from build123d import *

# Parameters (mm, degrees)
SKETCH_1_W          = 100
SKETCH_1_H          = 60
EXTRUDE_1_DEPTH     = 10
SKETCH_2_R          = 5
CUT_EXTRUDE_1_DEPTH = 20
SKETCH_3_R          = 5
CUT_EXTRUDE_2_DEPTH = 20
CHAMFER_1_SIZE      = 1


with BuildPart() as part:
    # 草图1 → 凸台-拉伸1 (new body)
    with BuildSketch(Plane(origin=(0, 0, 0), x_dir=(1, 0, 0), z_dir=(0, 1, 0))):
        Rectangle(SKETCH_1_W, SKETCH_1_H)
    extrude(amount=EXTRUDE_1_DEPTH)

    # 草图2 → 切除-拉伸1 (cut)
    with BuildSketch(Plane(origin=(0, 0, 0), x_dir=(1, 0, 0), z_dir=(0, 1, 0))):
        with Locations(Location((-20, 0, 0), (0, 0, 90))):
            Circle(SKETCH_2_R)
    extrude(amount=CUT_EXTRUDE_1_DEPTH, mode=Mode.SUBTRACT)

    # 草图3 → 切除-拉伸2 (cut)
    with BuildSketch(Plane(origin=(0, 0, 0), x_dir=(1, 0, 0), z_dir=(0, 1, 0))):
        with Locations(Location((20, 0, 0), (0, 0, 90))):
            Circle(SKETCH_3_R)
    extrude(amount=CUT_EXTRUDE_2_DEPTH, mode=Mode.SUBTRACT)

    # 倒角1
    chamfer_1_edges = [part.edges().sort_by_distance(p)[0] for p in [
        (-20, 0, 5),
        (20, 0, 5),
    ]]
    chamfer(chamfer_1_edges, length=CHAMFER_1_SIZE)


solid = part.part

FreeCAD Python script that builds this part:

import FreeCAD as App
import Part
import Sketcher

V = App.Vector


def edges_at(feature, points):
    """Names of the edges that pass closest to the given points."""
    edges = feature.Shape.Edges
    near = lambda p: min(range(len(edges)), key=lambda i: edges[i].distToShape(Part.Vertex(*p))[0])
    return sorted({f"Edge{near(p) + 1}" for p in points})

doc = App.newDocument("Part")
body = doc.addObject("PartDesign::Body", "Body")

# Sketch on XZ plane
sketch1 = body.newObject("Sketcher::SketchObject", "Sketch")
sketch1.AttachmentSupport = (doc.getObject("XZ_Plane"), [""])
sketch1.MapMode = "FlatFace"
sketch1.addGeometry([
    Part.LineSegment(V(-50, -30, 0), V(-50, 30, 0)),
    Part.LineSegment(V(-50, 30, 0), V(50, 30, 0)),
    Part.LineSegment(V(50, 30, 0), V(50, -30, 0)),
    Part.LineSegment(V(50, -30, 0), V(-50, -30, 0)),
], False)
sketch1.addConstraint([
    Sketcher.Constraint("Coincident", 0, 2, 1, 1),
    Sketcher.Constraint("Coincident", 1, 2, 2, 1),
    Sketcher.Constraint("Coincident", 2, 2, 3, 1),
    Sketcher.Constraint("Coincident", 3, 2, 0, 1),
    Sketcher.Constraint("Vertical", 0),
    Sketcher.Constraint("Horizontal", 1),
    Sketcher.Constraint("Vertical", 2),
    Sketcher.Constraint("Horizontal", 3),
    Sketcher.Constraint("Symmetric", 0, 2, 2, 2, -1, 1),
    Sketcher.Constraint("DistanceX", 1, 1, 1, 2, 100.0),
    Sketcher.Constraint("DistanceY", 0, 1, 0, 2, 60.0),
])
pad1 = body.newObject("PartDesign::Pad", "Pad")
pad1.Profile = sketch1
pad1.Length = 10
pad1.Reversed = True

# Sketch on XZ plane
sketch2 = body.newObject("Sketcher::SketchObject", "Sketch001")
sketch2.AttachmentSupport = (doc.getObject("XZ_Plane"), [""])
sketch2.MapMode = "FlatFace"
sketch2.addGeometry(Part.Circle(V(-20, 0, 0), V(0, 0, 1), 5), False)
sketch2.addConstraint([
    Sketcher.Constraint("PointOnObject", 0, 3, -1),
    Sketcher.Constraint("Diameter", 0, 10.0),
    Sketcher.Constraint("DistanceX", 0, 3, -1, 1, 20.0),
])
pocket1 = body.newObject("PartDesign::Pocket", "Pocket")
pocket1.Profile = sketch2
pocket1.Length = 20

# Sketch on XZ plane
sketch3 = body.newObject("Sketcher::SketchObject", "Sketch002")
sketch3.AttachmentSupport = (doc.getObject("XZ_Plane"), [""])
sketch3.MapMode = "FlatFace"
sketch3.addGeometry(Part.Circle(V(20, 0, 0), V(0, 0, 1), 5), False)
sketch3.addConstraint([
    Sketcher.Constraint("PointOnObject", 0, 3, -1),
    Sketcher.Constraint("Diameter", 0, 10.0),
    Sketcher.Constraint("DistanceX", -1, 1, 0, 3, 20.0),
])
pocket2 = body.newObject("PartDesign::Pocket", "Pocket001")
pocket2.Profile = sketch3
pocket2.Length = 20
doc.recompute()

chamfer = body.newObject("PartDesign::Chamfer", "Chamfer")
chamfer.Base = (pocket2, edges_at(pocket2, [(-20, 0, 5), (20, 0, 5)]))
chamfer.Size = 1

doc.recompute()
